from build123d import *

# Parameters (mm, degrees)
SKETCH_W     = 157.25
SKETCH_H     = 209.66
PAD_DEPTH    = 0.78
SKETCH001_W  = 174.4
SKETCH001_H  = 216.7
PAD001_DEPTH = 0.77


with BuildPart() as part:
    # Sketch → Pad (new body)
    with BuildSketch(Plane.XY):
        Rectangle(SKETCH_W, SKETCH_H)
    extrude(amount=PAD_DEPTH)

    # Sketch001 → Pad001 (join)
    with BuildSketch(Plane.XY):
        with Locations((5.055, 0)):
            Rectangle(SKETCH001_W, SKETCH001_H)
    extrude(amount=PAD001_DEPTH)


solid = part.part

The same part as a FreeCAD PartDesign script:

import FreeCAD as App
import Part
import Sketcher
from FreeCAD import Vector

doc = App.newDocument("Part")
body = doc.addObject("PartDesign::Body", "Body")

sketch1 = body.newObject("Sketcher::SketchObject", "Sketch")
sketch1.AttachmentSupport = (doc.getObject("XY_Plane"), [""])
sketch1.MapMode = "FlatFace"
sketch1.addGeometry([
    Part.LineSegment(Vector(-79, 105, 0), Vector(-79, -105, 0)),
    Part.LineSegment(Vector(-79, -105, 0), Vector(79, -105, 0)),
    Part.LineSegment(Vector(79, -105, 0), Vector(79, 105, 0)),
    Part.LineSegment(Vector(79, 105, 0), Vector(-79, 105, 0)),
], False)
sketch1.addConstraint([
    Sketcher.Constraint("Coincident", 0, 2, 1, 1),
    Sketcher.Constraint("Coincident", 1, 2, 2, 1),
    Sketcher.Constraint("Coincident", 2, 2, 3, 1),
    Sketcher.Constraint("Coincident", 3, 2, 0, 1),
    Sketcher.Constraint("Vertical", 0),
    Sketcher.Constraint("Horizontal", 1),
    Sketcher.Constraint("Vertical", 2),
    Sketcher.Constraint("Horizontal", 3),
    Sketcher.Constraint("Symmetric", 0, 2, 2, 2, -1, 1),
    Sketcher.Constraint("DistanceX", 1, 1, 1, 2, 157.25),
    Sketcher.Constraint("DistanceY", 0, 2, 0, 1, 209.66),
])
pad1 = body.newObject("PartDesign::Pad", "Pad")
pad1.Profile = sketch1
pad1.Length = 0.78

sketch2 = body.newObject("Sketcher::SketchObject", "Sketch001")
sketch2.AttachmentSupport = (doc.getObject("XY_Plane"), [""])
sketch2.MapMode = "FlatFace"
sketch2.addGeometry([
    Part.LineSegment(Vector(-82, 108, 0), Vector(-82, -108, 0)),
    Part.LineSegment(Vector(-82, -108, 0), Vector(92, -108, 0)),
    Part.LineSegment(Vector(92, -108, 0), Vector(92, 108, 0)),
    Part.LineSegment(Vector(92, 108, 0), Vector(-82, 108, 0)),
], False)
sketch2.addConstraint([
    Sketcher.Constraint("Coincident", 0, 2, 1, 1),
    Sketcher.Constraint("Coincident", 1, 2, 2, 1),
    Sketcher.Constraint("Coincident", 2, 2, 3, 1),
    Sketcher.Constraint("Coincident", 3, 2, 0, 1),
    Sketcher.Constraint("Vertical", 0),
    Sketcher.Constraint("Horizontal", 1),
    Sketcher.Constraint("Vertical", 2),
    Sketcher.Constraint("Horizontal", 3),
    Sketcher.Constraint("DistanceX", 1, 1, 1, 2, 174.4),
    Sketcher.Constraint("DistanceY", 0, 2, 0, 1, 216.7),
    Sketcher.Constraint("DistanceY", 0, 2, -1, 1, 108.35),
    Sketcher.Constraint("DistanceX", 0, 2, -1, 1, 82.145),
])
pad2 = body.newObject("PartDesign::Pad", "Pad001")
pad2.Profile = sketch2
pad2.Length = 0.77

doc.recompute()
